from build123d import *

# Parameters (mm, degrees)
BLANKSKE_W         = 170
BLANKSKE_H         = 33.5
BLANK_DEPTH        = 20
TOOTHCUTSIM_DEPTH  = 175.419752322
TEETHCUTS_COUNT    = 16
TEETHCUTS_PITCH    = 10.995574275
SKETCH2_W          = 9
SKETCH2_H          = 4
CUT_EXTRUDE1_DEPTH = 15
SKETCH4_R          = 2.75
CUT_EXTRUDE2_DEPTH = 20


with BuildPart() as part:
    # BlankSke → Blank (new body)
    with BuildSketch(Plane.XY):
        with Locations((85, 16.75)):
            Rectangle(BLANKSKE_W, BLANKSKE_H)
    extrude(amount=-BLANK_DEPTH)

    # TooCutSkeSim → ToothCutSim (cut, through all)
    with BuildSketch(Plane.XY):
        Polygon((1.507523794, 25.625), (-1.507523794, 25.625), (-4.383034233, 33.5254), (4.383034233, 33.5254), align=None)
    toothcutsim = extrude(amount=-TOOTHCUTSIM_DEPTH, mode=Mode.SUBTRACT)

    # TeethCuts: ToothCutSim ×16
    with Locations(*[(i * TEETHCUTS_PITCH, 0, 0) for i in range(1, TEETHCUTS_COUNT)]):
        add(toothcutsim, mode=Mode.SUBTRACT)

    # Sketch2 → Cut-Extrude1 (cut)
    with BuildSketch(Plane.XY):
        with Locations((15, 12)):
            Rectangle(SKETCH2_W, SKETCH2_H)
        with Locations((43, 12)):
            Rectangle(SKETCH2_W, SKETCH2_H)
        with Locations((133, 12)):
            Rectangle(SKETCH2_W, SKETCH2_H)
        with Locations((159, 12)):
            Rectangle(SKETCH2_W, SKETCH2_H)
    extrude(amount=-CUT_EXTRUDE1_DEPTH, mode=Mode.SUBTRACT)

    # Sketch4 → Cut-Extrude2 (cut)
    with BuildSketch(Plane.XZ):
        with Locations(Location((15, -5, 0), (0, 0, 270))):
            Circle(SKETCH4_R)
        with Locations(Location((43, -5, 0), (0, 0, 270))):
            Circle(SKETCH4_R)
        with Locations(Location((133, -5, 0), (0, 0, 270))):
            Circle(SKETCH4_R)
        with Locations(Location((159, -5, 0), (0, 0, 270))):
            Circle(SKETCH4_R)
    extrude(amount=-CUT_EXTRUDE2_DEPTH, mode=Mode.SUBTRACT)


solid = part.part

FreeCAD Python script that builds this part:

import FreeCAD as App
import Part
import Sketcher
from FreeCAD import Vector
Q = App.Units.Quantity


def add_polygon(sketch, points):
    """Adds a closed chain of lines whose ends are joined by coincident constraints."""
    first, n = sketch.GeometryCount, len(points)
    for a, b in zip(points, points[1:] + points[:1]):
        sketch.addGeometry(Part.LineSegment(App.Vector(*a, 0), App.Vector(*b, 0)), False)
    for i in range(n):
        sketch.addConstraint(Sketcher.Constraint("Coincident", first + i, 2, first + (i + 1) % n, 1))

doc = App.newDocument("Part")
body = doc.addObject("PartDesign::Body", "Body")

# Sketch on XY plane
sketch1 = doc.addObject("Sketcher::SketchObject", "Sketch")
body.addObject(sketch1)
sketch1.AttachmentSupport = (doc.XY_Plane, [""])
sketch1.MapMode = "FlatFace"
add_polygon(sketch1, [(0, 33.5), (0, 0), (170, 0), (170, 33.5)])  # lines 0-3
sketch1.addConstraint([
    Sketcher.Constraint("Vertical", 0),
    Sketcher.Constraint("Horizontal", 1),
    Sketcher.Constraint("Vertical", 2),
    Sketcher.Constraint("Horizontal", 3),
    Sketcher.Constraint("Coincident", 0, 2, -1, 1),
    Sketcher.Constraint("DistanceX", 1, 1, 1, 2, Q("170 mm")),
    Sketcher.Constraint("DistanceY", 0, 2, 0, 1, Q("33.5 mm")),
])
pad1 = doc.addObject("PartDesign::Pad", "Pad")
body.addObject(pad1)
pad1.Profile = sketch1
pad1.Length = 20
pad1.Reversed = True

# Sketch on XY plane
sketch2 = doc.addObject("Sketcher::SketchObject", "Sketch001")
body.addObject(sketch2)
sketch2.AttachmentSupport = (doc.XY_Plane, [""])
sketch2.MapMode = "FlatFace"
add_polygon(sketch2, [(-1.507524, 25.625), (1.507524, 25.625), (4.383034, 33.5254), (-4.383034, 33.5254)])  # lines 0-3
sketch2.addConstraint([
    Sketcher.Constraint("Horizontal", 0),
    Sketcher.Constraint("Horizontal", 2),
    Sketcher.Constraint("Equal", 1, 3),
    Sketcher.Constraint("Angle", 1, Q("70 deg")),
    Sketcher.Constraint("DistanceY", -1, 1, 0, 2, Q("25.625 mm")),
    Sketcher.Constraint("DistanceX", 2, 2, 2, 1, Q("8.766068 mm")),
    Sketcher.Constraint("DistanceY", -1, 1, 1, 2, Q("33.5254 mm")),
    Sketcher.Constraint("DistanceX", -1, 1, 0, 2, Q("1.507524 mm")),
])
pocket1 = doc.addObject("PartDesign::Pocket", "Pocket")
body.addObject(pocket1)
pocket1.Profile = sketch2
pocket1.Type = "ThroughAll"
doc.recompute()

linearpattern = doc.addObject("PartDesign::LinearPattern", "LinearPattern")
body.addObject(linearpattern)
linearpattern.Originals = [pocket1]
linearpattern.Direction = (doc.X_Axis, [""])
linearpattern.Mode = "offset"
linearpattern.Offset = 10.995574
linearpattern.Occurrences = 16
body.Tip = linearpattern

# Sketch on XY plane
sketch3 = doc.addObject("Sketcher::SketchObject", "Sketch002")
body.addObject(sketch3)
sketch3.AttachmentSupport = (doc.XY_Plane, [""])
sketch3.MapMode = "FlatFace"
add_polygon(sketch3, [(10.5, 14), (10.5, 10), (19.5, 10), (19.5, 14)])  # lines 0-3
add_polygon(sketch3, [(38.5, 14), (38.5, 10), (47.5, 10), (47.5, 14)])  # lines 4-7
add_polygon(sketch3, [(128.5, 14), (128.5, 10), (137.5, 10), (137.5, 14)])  # lines 8-11
add_polygon(sketch3, [(154.5, 14), (154.5, 10), (163.5, 10), (163.5, 14)])  # lines 12-15
sketch3.addConstraint([
    Sketcher.Constraint("Vertical", 0),
    Sketcher.Constraint("Horizontal", 1),
    Sketcher.Constraint("Vertical", 2),
    Sketcher.Constraint("Horizontal", 3),
    Sketcher.Constraint("Vertical", 4),
    Sketcher.Constraint("Horizontal", 5),
    Sketcher.Constraint("Vertical", 6),
    Sketcher.Constraint("Horizontal", 7),
    Sketcher.Constraint("Vertical", 8),
    Sketcher.Constraint("Horizontal", 9),
    Sketcher.Constraint("Vertical", 10),
    Sketcher.Constraint("Horizontal", 11),
    Sketcher.Constraint("Vertical", 12),
    Sketcher.Constraint("Horizontal", 13),
    Sketcher.Constraint("Vertical", 14),
    Sketcher.Constraint("Horizontal", 15),
    Sketcher.Constraint("Horizontal", 1, 2, 4, 2),
    Sketcher.Constraint("Horizontal", 3, 2, 6, 2),
    Sketcher.Constraint("Horizontal", 5, 2, 8, 2),
    Sketcher.Constraint("Horizontal", 7, 2, 10, 2),
    Sketcher.Constraint("Horizontal", 9, 2, 12, 2),
    Sketcher.Constraint("Horizontal", 11, 2, 14, 2),
    Sketcher.Constraint("Equal", 3, 5),
    Sketcher.Constraint("Equal", 7, 9),
    Sketcher.Constraint("Equal", 11, 13),
    Sketcher.Constraint("DistanceX", 1, 1, 1, 2, Q("9 mm")),
    Sketcher.Constraint("DistanceY", 0, 2, 0, 1, Q("4 mm")),
    Sketcher.Constraint("DistanceY", -1, 1, 0, 2, Q("10 mm")),
    Sketcher.Constraint("DistanceX", 1, 2, 4, 2, Q("19 mm")),
    Sketcher.Constraint("DistanceX", 5, 2, 8, 2, Q("81 mm")),
    Sketcher.Constraint("DistanceX", 9, 2, 12, 2, Q("17 mm")),
    Sketcher.Constraint("DistanceX", -1, 1, 0, 2, Q("10.5 mm")),
])
pocket2 = doc.addObject("PartDesign::Pocket", "Pocket001")
body.addObject(pocket2)
pocket2.Profile = sketch3
pocket2.Length = 15

# Sketch on XZ plane
sketch4 = doc.addObject("Sketcher::SketchObject", "Sketch003")
body.addObject(sketch4)
sketch4.AttachmentSupport = (doc.XZ_Plane, [""])
sketch4.MapMode = "FlatFace"
sketch4.addGeometry([
    Part.Circle(Vector(15, -5, 0), Vector(0, 0, 1), 2.75),
    Part.Circle(Vector(43, -5, 0), Vector(0, 0, 1), 2.75),
    Part.Circle(Vector(133, -5, 0), Vector(0, 0, 1), 2.75),
    Part.Circle(Vector(159, -5, 0), Vector(0, 0, 1), 2.75),
], False)
sketch4.addConstraint([
    Sketcher.Constraint("Equal", 0, 1),
    Sketcher.Constraint("Equal", 1, 2),
    Sketcher.Constraint("Equal", 2, 3),
    Sketcher.Constraint("Horizontal", 0, 3, 1, 3),
    Sketcher.Constraint("Horizontal", 1, 3, 2, 3),
    Sketcher.Constraint("Horizontal", 2, 3, 3, 3),
    Sketcher.Constraint("Diameter", 0, Q("5.5 mm")),
    Sketcher.Constraint("DistanceX", -1, 1, 0, 3, Q("15 mm")),
    Sketcher.Constraint("DistanceY", 0, 3, -1, 1, Q("5 mm")),
    Sketcher.Constraint("DistanceX", -1, 1, 1, 3, Q("43 mm")),
    Sketcher.Constraint("DistanceX", -1, 1, 2, 3, Q("133 mm")),
    Sketcher.Constraint("DistanceX", -1, 1, 3, 3, Q("159 mm")),
])
pocket3 = doc.addObject("PartDesign::Pocket", "Pocket002")
body.addObject(pocket3)
pocket3.Profile = sketch4
pocket3.Length = 20

doc.recompute()
